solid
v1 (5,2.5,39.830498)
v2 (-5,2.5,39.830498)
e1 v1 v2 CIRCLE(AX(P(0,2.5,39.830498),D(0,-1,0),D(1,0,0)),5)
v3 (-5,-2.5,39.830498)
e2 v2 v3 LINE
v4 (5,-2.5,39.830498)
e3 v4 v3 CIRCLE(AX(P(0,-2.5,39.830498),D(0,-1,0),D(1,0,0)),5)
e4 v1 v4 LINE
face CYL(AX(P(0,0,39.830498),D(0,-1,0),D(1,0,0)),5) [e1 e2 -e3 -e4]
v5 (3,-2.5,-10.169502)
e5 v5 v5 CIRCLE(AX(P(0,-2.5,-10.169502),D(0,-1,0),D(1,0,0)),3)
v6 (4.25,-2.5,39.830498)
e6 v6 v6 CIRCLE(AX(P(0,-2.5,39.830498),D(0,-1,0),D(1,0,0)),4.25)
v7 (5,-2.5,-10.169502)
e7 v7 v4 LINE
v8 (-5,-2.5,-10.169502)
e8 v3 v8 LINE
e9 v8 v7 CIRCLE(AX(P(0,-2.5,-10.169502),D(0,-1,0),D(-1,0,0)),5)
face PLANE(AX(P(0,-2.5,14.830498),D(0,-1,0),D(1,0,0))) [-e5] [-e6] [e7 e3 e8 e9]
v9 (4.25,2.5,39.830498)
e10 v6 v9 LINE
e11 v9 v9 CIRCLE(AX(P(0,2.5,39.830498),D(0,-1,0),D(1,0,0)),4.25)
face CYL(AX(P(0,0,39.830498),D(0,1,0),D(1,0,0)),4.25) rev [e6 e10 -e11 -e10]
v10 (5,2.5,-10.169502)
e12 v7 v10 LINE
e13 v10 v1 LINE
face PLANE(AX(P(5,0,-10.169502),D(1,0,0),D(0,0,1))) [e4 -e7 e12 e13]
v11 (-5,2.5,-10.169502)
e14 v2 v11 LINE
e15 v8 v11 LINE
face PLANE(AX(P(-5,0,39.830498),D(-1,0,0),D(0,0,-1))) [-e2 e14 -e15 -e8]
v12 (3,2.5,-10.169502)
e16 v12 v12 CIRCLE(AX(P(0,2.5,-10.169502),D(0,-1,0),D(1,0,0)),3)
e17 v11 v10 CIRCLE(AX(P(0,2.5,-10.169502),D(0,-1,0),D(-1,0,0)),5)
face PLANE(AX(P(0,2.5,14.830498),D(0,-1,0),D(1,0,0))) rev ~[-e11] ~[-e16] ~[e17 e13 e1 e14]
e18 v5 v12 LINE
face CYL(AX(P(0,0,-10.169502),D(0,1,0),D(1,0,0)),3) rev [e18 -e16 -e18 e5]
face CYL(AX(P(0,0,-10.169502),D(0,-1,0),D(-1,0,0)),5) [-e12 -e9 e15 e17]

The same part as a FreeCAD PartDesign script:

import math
import FreeCAD as App
import Part
import Sketcher
Q = App.Units.Quantity

doc = App.newDocument("Part")
body = doc.addObject("PartDesign::Body", "Body")

# Sketch on XZ plane
sketch1 = body.newObject("Sketcher::SketchObject", "Sketch")
sketch1.AttachmentSupport = (doc.getObject("XZ_Plane"), [""])
sketch1.MapMode = "FlatFace"
sketch1.addGeometry(Part.LineSegment(App.Vector(5, -10.2, 0), App.Vector(5, 39.8, 0)), False)
sketch1.addGeometry(Part.ArcOfCircle(Part.Circle(App.Vector(0, 39.8, 0), App.Vector(0, 0, 1), 5), math.radians(0), math.radians(180)), False)
sketch1.addGeometry(Part.LineSegment(App.Vector(-5, 39.8, 0), App.Vector(-5, -10.2, 0)), False)
sketch1.addGeometry(Part.ArcOfCircle(Part.Circle(App.Vector(0, -10.2, 0), App.Vector(0, 0, 1), 5), math.radians(180), math.radians(360)), False)
sketch1.addGeometry(Part.Circle(App.Vector(0, -10.2, 0), App.Vector(0, 0, 1), 3), False)
sketch1.addGeometry(Part.Circle(App.Vector(0, 39.8, 0), App.Vector(0, 0, 1), 4.2), False)
sketch1.addConstraint(Sketcher.Constraint("Tangent", 0, 2, 1, 1))
sketch1.addConstraint(Sketcher.Constraint("Tangent", 1, 2, 2, 1))
sketch1.addConstraint(Sketcher.Constraint("Tangent", 2, 2, 3, 1))
sketch1.addConstraint(Sketcher.Constraint("Tangent", 3, 2, 0, 1))
sketch1.addConstraint(Sketcher.Constraint("Vertical", 0))
sketch1.addConstraint(Sketcher.Constraint("Vertical", 2))
sketch1.addConstraint(Sketcher.Constraint("Coincident", 4, 3, 3, 3))
sketch1.addConstraint(Sketcher.Constraint("Coincident", 5, 3, 1, 3))
sketch1.addConstraint(Sketcher.Constraint("PointOnObject", 1, 3, -2))
sketch1.addConstraint(Sketcher.Constraint("Diameter", 4, Q("6 mm")))
sketch1.addConstraint(Sketcher.Constraint("Radius", 1, Q("5 mm")))
sketch1.addConstraint(Sketcher.Constraint("Diameter", 5, Q("8.5 mm")))
sketch1.addConstraint(Sketcher.Constraint("DistanceY", 0, 1, 0, 2, Q("50 mm")))
sketch1.addConstraint(Sketcher.Constraint("DistanceY", -1, 1, 1, 3, Q("39.830498 mm")))
pad1 = body.newObject("PartDesign::Pad", "Pad")
pad1.Profile = sketch1
pad1.Length = 5
pad1.Midplane = True

doc.recompute()
